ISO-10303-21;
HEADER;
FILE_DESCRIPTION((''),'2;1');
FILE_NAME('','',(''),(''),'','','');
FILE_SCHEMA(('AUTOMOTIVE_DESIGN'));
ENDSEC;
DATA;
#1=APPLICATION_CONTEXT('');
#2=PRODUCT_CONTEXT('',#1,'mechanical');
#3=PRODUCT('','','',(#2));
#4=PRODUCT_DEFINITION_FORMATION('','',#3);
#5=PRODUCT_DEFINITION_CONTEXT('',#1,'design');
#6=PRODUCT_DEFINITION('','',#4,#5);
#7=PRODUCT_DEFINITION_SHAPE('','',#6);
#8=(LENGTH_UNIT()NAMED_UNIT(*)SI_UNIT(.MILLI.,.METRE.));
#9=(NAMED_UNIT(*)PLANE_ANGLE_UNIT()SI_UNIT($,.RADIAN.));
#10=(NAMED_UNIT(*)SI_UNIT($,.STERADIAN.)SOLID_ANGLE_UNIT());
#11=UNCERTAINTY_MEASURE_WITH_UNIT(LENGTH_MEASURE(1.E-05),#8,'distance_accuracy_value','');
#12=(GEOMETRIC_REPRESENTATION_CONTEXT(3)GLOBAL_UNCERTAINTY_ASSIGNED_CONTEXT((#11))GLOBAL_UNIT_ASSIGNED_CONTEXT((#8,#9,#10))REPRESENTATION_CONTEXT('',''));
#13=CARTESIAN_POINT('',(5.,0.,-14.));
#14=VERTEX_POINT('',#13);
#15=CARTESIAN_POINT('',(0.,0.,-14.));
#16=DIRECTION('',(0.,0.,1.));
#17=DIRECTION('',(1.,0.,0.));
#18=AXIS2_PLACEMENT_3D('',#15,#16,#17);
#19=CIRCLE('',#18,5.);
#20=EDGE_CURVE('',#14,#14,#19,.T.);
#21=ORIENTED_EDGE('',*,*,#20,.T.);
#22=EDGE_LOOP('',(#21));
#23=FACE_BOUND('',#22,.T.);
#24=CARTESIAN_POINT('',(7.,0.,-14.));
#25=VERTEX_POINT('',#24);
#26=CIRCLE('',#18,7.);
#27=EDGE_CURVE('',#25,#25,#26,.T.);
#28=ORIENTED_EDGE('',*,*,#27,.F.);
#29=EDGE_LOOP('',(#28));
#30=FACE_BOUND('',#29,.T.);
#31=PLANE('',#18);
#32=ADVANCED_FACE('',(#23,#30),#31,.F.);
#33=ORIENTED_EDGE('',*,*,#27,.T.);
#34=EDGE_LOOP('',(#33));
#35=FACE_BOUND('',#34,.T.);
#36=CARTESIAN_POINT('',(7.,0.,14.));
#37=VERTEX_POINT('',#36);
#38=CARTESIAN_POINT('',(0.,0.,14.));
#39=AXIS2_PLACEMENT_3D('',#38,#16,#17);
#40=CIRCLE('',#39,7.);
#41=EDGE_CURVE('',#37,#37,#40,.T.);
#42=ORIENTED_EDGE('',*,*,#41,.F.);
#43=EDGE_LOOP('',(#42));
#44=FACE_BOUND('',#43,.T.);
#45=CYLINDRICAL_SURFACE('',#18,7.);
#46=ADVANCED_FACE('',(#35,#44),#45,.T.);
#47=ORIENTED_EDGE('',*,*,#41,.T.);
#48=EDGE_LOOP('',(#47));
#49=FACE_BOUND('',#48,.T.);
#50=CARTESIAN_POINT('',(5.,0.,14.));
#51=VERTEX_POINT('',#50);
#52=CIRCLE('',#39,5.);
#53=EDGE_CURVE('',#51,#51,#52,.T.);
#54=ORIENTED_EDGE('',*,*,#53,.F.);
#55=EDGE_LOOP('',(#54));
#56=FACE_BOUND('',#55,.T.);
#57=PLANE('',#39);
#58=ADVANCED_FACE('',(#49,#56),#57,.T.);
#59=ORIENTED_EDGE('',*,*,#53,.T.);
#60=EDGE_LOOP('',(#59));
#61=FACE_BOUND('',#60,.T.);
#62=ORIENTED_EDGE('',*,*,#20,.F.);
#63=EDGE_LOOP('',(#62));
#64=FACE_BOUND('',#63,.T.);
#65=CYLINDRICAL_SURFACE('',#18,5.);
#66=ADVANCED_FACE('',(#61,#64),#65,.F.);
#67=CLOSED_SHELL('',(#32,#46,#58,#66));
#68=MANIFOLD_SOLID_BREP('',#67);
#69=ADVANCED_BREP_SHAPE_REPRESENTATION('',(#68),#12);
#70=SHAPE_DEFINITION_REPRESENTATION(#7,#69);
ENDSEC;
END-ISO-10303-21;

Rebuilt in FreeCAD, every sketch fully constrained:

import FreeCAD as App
import Part
import Sketcher

V = App.Vector

doc = App.newDocument("Part")
body = doc.addObject("PartDesign::Body", "Body")

# Sketch on XY plane
sketch1 = body.newObject("Sketcher::SketchObject", "Sketch")
sketch1.AttachmentSupport = (doc.getObject("XY_Plane"), [""])
sketch1.MapMode = "FlatFace"
sketch1.AttachmentOffset = App.Placement(V(0, 0, -14), App.Rotation())
sketch1.addGeometry([
    Part.Circle(V(0, 0, 0), V(0, 0, 1), 7),
    Part.Circle(V(0, 0, 0), V(0, 0, 1), 5),
], False)
sketch1.addConstraint([
    Sketcher.Constraint("Coincident", 0, 3, -1, 1),
    Sketcher.Constraint("Coincident", 1, 3, -1, 1),
    Sketcher.Constraint("Diameter", 0, 14.0),
    Sketcher.Constraint("Diameter", 1, 10.0),
])
pad1 = body.newObject("PartDesign::Pad", "Pad")
pad1.Profile = sketch1
pad1.Length = 28

doc.recompute()
